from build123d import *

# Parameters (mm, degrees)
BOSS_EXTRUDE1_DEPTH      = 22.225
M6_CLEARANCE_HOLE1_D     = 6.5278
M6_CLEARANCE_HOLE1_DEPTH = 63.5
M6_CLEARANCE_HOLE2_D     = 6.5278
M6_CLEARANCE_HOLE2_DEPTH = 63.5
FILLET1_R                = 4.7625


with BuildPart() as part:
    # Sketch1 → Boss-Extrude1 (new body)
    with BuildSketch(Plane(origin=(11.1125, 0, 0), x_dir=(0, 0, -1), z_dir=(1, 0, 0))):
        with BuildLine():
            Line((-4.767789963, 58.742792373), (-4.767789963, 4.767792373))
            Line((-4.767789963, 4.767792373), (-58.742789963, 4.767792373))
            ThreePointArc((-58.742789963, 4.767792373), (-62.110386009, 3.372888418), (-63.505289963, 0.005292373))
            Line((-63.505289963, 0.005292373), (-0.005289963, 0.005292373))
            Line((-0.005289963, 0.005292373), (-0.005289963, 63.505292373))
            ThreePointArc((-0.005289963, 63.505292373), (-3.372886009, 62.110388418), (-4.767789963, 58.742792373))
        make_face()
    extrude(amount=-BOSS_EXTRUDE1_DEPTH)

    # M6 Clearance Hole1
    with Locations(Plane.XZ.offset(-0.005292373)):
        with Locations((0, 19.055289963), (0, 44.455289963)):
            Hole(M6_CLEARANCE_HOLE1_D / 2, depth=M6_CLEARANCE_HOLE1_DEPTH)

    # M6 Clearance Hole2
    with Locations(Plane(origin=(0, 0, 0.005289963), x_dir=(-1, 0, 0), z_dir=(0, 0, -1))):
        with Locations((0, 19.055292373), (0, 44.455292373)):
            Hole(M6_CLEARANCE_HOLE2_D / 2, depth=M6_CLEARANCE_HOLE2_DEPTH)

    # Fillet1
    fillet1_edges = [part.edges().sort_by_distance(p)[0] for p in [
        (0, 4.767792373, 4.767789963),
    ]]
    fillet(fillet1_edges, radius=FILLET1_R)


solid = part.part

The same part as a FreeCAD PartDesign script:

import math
import FreeCAD as App
import Part
import Sketcher

V = App.Vector
Q = App.Units.Quantity


def edges_at(feature, points):
    """Names of the edges that pass closest to the given points."""
    edges = feature.Shape.Edges
    near = lambda p: min(range(len(edges)), key=lambda i: edges[i].distToShape(Part.Vertex(*p))[0])
    return sorted({f"Edge{near(p) + 1}" for p in points})

doc = App.newDocument("Part")
params = doc.addObject("Spreadsheet::Sheet", "Params")
for row, (alias, value) in enumerate([
    ("sketch1_width", "2.5 in"),
    ("sketch1_radius", "0.1875 in"),
    ("pad1_length", "0.875 in"),
    ("sketch2_diameter", "0.257 in"),
    ("hole_diameter", "0.257 in"),
    ("hole_depth", "2.5 in"),
    ("sketch3_diameter", "0.257 in"),
    ("hole2_diameter", "0.257 in"),
    ("hole2_depth", "2.5 in"),
    ("fillet_radius", "0.1875 in"),
], start=1):
    params.set(f"A{row}", alias)
    params.set(f"B{row}", "=" + value)
    params.setAlias(f"B{row}", alias)

body = doc.addObject("PartDesign::Body", "Body")

sketch1 = body.newObject("Sketcher::SketchObject", "Sketch")
sketch1.AttachmentSupport = (doc.getObject("YZ_Plane"), [""])
sketch1.MapMode = "FlatFace"
sketch1.AttachmentOffset = App.Placement(V(0, 0, 0.4375 * 25.4), App.Rotation())
sketch1.addGeometry(Part.LineSegment(V(58.742792, 4.76779, 0), V(4.767792, 4.76779, 0)), False)
sketch1.addGeometry(Part.LineSegment(V(4.767792, 4.76779, 0), V(4.767792, 58.74279, 0)), False)
sketch1.addGeometry(Part.ArcOfCircle(Part.Circle(V(0.005292, 58.74279, 0), V(0, 0, 1), 4.7625), math.radians(0), math.radians(90)), False)
sketch1.addGeometry(Part.LineSegment(V(0.005292, 63.50529, 0), V(0.005292, 0.00529, 0)), False)
sketch1.addGeometry(Part.LineSegment(V(0.005292, 0.00529, 0), V(63.505292, 0.00529, 0)), False)
sketch1.addGeometry(Part.ArcOfCircle(Part.Circle(V(58.742792, 0.00529, 0), V(0, 0, 1), 4.7625), math.radians(0), math.radians(90)), False)
sketch1.addConstraint(Sketcher.Constraint("Coincident", 0, 2, 1, 1))
sketch1.addConstraint(Sketcher.Constraint("Tangent", 1, 2, 2, 1))
sketch1.addConstraint(Sketcher.Constraint("Coincident", 2, 2, 3, 1))
sketch1.addConstraint(Sketcher.Constraint("Coincident", 3, 2, 4, 1))
sketch1.addConstraint(Sketcher.Constraint("Coincident", 4, 2, 5, 1))
sketch1.addConstraint(Sketcher.Constraint("Tangent", 5, 2, 0, 1))
sketch1.addConstraint(Sketcher.Constraint("Horizontal", 0))
sketch1.addConstraint(Sketcher.Constraint("Vertical", 1))
sketch1.addConstraint(Sketcher.Constraint("Vertical", 3))
sketch1.addConstraint(Sketcher.Constraint("Horizontal", 4))
sketch1.addConstraint(Sketcher.Constraint("Equal", 2, 5))
sketch1.addConstraint(Sketcher.Constraint("Horizontal", 5, 3, 3, 2))
sketch1.addConstraint(Sketcher.Constraint("Equal", 0, 1))
sketch1.addConstraint(Sketcher.Constraint("Equal", 4, 3))
sketch1.addConstraint(Sketcher.Constraint("DistanceX", 4, 1, 4, 2, Q("2.5 in")))
sketch1.addConstraint(Sketcher.Constraint("Radius", 2, Q("0.1875 in")))
sketch1.addConstraint(Sketcher.Constraint("DistanceY", -1, 1, 2, 3, Q("58.74279 mm")))
sketch1.addConstraint(Sketcher.Constraint("DistanceX", -1, 1, 2, 3, Q("0.005292 mm")))
sketch1.setExpression("Constraints[14]", "Params.sketch1_width")
sketch1.setExpression("Constraints[15]", "Params.sketch1_radius")
pad1 = body.newObject("PartDesign::Pad", "Pad")
pad1.Profile = sketch1
pad1.setExpression("Length", "Params.pad1_length")
pad1.Reversed = True

sketch2 = body.newObject("Sketcher::SketchObject", "Sketch001")
sketch2.AttachmentSupport = (doc.getObject("XZ_Plane"), [""])
sketch2.MapMode = "FlatFace"
sketch2.AttachmentOffset = App.Placement(V(0, 0, -0.005292), App.Rotation())
sketch2.addGeometry(Part.Circle(V(0, 19.05529, 0), V(0, 0, 1), 3.2639), False)
sketch2.addGeometry(Part.Circle(V(0, 44.45529, 0), V(0, 0, 1), 3.2639), False)
sketch2.addConstraint(Sketcher.Constraint("Equal", 0, 1))
sketch2.addConstraint(Sketcher.Constraint("PointOnObject", 0, 3, -2))
sketch2.addConstraint(Sketcher.Constraint("PointOnObject", 1, 3, -2))
sketch2.addConstraint(Sketcher.Constraint("Diameter", 0, Q("0.257 in")))
sketch2.addConstraint(Sketcher.Constraint("DistanceY", 0, 3, 1, 3, Q("1 in")))
sketch2.addConstraint(Sketcher.Constraint("DistanceY", -1, 1, 0, 3, Q("19.05529 mm")))
sketch2.setExpression("Constraints[3]", "Params.sketch2_diameter")
doc.recompute()
hole = body.newObject("PartDesign::Hole", "Hole")
hole.Profile = sketch2
hole.ThreadType = "None"
hole.setExpression("Diameter", "Params.hole_diameter")
hole.DepthType = "Dimension"
hole.setExpression("Depth", "Params.hole_depth")
hole.DrillPoint = "Flat"

sketch3 = body.newObject("Sketcher::SketchObject", "Sketch002")
sketch3.AttachmentSupport = (doc.getObject("XY_Plane"), [""])
sketch3.MapMode = "FlatFace"
sketch3.AttachmentOffset = App.Placement(V(0, 0, 0.00529), App.Rotation())
sketch3.addGeometry(Part.Circle(V(0, 19.055292, 0), V(0, 0, 1), 3.2639), False)
sketch3.addGeometry(Part.Circle(V(0, 44.455292, 0), V(0, 0, 1), 3.2639), False)
sketch3.addConstraint(Sketcher.Constraint("Equal", 0, 1))
sketch3.addConstraint(Sketcher.Constraint("PointOnObject", 0, 3, -2))
sketch3.addConstraint(Sketcher.Constraint("PointOnObject", 1, 3, -2))
sketch3.addConstraint(Sketcher.Constraint("Diameter", 0, Q("0.257 in")))
sketch3.addConstraint(Sketcher.Constraint("DistanceY", 0, 3, 1, 3, Q("1 in")))
sketch3.addConstraint(Sketcher.Constraint("DistanceY", -1, 1, 0, 3, Q("19.055292 mm")))
sketch3.setExpression("Constraints[3]", "Params.sketch3_diameter")
doc.recompute()
hole2 = body.newObject("PartDesign::Hole", "Hole001")
hole2.Profile = sketch3
hole2.ThreadType = "None"
hole2.setExpression("Diameter", "Params.hole2_diameter")
hole2.DepthType = "Dimension"
hole2.setExpression("Depth", "Params.hole2_depth")
hole2.DrillPoint = "Flat"
hole2.Reversed = True
doc.recompute()

fillet = body.newObject("PartDesign::Fillet", "Fillet")
fillet.Base = (hole2, edges_at(hole2, [(0, 4.768, 4.768)]))
fillet.setExpression("Radius", "Params.fillet_radius")

doc.recompute()
